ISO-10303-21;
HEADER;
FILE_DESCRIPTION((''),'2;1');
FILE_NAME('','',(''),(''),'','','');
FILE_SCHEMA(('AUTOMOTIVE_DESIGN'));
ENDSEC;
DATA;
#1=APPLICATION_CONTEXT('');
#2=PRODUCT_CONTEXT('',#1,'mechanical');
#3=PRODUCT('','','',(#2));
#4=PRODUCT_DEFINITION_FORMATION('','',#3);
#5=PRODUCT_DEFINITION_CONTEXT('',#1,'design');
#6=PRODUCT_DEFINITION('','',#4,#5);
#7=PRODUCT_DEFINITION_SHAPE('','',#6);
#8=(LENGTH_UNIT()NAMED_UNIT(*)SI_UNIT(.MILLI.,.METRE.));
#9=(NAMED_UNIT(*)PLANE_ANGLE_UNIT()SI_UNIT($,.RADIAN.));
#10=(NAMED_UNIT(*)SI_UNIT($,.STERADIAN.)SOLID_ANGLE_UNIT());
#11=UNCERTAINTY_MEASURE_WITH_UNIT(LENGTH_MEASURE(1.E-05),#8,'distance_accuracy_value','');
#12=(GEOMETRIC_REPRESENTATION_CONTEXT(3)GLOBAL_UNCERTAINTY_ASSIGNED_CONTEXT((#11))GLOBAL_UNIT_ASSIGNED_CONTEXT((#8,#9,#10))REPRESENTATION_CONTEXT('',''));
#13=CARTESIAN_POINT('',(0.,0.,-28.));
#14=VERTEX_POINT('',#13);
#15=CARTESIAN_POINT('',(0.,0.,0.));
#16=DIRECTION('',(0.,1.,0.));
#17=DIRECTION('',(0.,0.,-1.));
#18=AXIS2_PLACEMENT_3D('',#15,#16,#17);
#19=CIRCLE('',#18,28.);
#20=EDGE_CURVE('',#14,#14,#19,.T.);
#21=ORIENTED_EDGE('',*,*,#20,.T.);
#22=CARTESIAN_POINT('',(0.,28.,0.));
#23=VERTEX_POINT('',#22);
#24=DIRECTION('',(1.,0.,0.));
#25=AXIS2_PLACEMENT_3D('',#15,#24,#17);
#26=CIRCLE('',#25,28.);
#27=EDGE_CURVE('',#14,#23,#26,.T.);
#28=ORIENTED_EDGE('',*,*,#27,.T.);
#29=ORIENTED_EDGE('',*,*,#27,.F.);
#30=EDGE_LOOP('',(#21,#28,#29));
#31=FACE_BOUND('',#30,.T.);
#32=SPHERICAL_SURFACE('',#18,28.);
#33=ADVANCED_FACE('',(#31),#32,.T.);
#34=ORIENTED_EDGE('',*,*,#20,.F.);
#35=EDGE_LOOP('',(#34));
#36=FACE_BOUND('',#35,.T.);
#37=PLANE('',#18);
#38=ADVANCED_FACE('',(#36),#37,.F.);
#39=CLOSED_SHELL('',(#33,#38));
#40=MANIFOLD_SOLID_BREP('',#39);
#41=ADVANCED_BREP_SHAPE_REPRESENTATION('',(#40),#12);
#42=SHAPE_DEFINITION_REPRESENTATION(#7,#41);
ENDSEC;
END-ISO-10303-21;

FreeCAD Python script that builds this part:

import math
import FreeCAD as App
import Part
import Sketcher
from FreeCAD import Vector
Q = App.Units.Quantity

doc = App.newDocument("Part")
params = doc.addObject("Spreadsheet::Sheet", "Params")
for row, (alias, value) in enumerate([
    ("sketch1_radius", "28 mm"),
    ("revolution_angle", "360 deg"),
], start=1):
    params.set(f"A{row}", alias)
    params.set(f"B{row}", "=" + value)
    params.setAlias(f"B{row}", alias)

body = doc.addObject("PartDesign::Body", "Body")

# Sketch on YZ plane
sketch1 = body.newObject("Sketcher::SketchObject", "Sketch")
sketch1.AttachmentSupport = (doc.getObject("YZ_Plane"), [""])
sketch1.MapMode = "FlatFace"
sketch1.addGeometry(Part.LineSegment(Vector(28, 0, 0), Vector(0, 0, 0)), False)
sketch1.addGeometry(Part.LineSegment(Vector(0, 0, 0), Vector(0, -28, 0)), False)
sketch1.addGeometry(Part.ArcOfCircle(Part.Circle(Vector(0, 0, 0), Vector(0, 0, 1), 28), math.radians(-90), math.radians(0)), False)
sketch1.addConstraint(Sketcher.Constraint("Coincident", 0, 2, 1, 1))
sketch1.addConstraint(Sketcher.Constraint("Coincident", 1, 2, 2, 1))
sketch1.addConstraint(Sketcher.Constraint("Coincident", 2, 2, 0, 1))
sketch1.addConstraint(Sketcher.Constraint("Horizontal", 0))
sketch1.addConstraint(Sketcher.Constraint("Vertical", 1))
sketch1.addConstraint(Sketcher.Constraint("Coincident", 2, 3, -1, 1))
sketch1.addConstraint(Sketcher.Constraint("Coincident", 0, 2, -1, 1))
sketch1.addConstraint(Sketcher.Constraint("Radius", 2, Q("28 mm")))
sketch1.setExpression("Constraints[7]", "Params.sketch1_radius")
revolution = body.newObject("PartDesign::Revolution", "Revolution")
revolution.Profile = sketch1
revolution.ReferenceAxis = (sketch1, ["H_Axis"])
revolution.setExpression("Angle", "Params.revolution_angle")

doc.recompute()
